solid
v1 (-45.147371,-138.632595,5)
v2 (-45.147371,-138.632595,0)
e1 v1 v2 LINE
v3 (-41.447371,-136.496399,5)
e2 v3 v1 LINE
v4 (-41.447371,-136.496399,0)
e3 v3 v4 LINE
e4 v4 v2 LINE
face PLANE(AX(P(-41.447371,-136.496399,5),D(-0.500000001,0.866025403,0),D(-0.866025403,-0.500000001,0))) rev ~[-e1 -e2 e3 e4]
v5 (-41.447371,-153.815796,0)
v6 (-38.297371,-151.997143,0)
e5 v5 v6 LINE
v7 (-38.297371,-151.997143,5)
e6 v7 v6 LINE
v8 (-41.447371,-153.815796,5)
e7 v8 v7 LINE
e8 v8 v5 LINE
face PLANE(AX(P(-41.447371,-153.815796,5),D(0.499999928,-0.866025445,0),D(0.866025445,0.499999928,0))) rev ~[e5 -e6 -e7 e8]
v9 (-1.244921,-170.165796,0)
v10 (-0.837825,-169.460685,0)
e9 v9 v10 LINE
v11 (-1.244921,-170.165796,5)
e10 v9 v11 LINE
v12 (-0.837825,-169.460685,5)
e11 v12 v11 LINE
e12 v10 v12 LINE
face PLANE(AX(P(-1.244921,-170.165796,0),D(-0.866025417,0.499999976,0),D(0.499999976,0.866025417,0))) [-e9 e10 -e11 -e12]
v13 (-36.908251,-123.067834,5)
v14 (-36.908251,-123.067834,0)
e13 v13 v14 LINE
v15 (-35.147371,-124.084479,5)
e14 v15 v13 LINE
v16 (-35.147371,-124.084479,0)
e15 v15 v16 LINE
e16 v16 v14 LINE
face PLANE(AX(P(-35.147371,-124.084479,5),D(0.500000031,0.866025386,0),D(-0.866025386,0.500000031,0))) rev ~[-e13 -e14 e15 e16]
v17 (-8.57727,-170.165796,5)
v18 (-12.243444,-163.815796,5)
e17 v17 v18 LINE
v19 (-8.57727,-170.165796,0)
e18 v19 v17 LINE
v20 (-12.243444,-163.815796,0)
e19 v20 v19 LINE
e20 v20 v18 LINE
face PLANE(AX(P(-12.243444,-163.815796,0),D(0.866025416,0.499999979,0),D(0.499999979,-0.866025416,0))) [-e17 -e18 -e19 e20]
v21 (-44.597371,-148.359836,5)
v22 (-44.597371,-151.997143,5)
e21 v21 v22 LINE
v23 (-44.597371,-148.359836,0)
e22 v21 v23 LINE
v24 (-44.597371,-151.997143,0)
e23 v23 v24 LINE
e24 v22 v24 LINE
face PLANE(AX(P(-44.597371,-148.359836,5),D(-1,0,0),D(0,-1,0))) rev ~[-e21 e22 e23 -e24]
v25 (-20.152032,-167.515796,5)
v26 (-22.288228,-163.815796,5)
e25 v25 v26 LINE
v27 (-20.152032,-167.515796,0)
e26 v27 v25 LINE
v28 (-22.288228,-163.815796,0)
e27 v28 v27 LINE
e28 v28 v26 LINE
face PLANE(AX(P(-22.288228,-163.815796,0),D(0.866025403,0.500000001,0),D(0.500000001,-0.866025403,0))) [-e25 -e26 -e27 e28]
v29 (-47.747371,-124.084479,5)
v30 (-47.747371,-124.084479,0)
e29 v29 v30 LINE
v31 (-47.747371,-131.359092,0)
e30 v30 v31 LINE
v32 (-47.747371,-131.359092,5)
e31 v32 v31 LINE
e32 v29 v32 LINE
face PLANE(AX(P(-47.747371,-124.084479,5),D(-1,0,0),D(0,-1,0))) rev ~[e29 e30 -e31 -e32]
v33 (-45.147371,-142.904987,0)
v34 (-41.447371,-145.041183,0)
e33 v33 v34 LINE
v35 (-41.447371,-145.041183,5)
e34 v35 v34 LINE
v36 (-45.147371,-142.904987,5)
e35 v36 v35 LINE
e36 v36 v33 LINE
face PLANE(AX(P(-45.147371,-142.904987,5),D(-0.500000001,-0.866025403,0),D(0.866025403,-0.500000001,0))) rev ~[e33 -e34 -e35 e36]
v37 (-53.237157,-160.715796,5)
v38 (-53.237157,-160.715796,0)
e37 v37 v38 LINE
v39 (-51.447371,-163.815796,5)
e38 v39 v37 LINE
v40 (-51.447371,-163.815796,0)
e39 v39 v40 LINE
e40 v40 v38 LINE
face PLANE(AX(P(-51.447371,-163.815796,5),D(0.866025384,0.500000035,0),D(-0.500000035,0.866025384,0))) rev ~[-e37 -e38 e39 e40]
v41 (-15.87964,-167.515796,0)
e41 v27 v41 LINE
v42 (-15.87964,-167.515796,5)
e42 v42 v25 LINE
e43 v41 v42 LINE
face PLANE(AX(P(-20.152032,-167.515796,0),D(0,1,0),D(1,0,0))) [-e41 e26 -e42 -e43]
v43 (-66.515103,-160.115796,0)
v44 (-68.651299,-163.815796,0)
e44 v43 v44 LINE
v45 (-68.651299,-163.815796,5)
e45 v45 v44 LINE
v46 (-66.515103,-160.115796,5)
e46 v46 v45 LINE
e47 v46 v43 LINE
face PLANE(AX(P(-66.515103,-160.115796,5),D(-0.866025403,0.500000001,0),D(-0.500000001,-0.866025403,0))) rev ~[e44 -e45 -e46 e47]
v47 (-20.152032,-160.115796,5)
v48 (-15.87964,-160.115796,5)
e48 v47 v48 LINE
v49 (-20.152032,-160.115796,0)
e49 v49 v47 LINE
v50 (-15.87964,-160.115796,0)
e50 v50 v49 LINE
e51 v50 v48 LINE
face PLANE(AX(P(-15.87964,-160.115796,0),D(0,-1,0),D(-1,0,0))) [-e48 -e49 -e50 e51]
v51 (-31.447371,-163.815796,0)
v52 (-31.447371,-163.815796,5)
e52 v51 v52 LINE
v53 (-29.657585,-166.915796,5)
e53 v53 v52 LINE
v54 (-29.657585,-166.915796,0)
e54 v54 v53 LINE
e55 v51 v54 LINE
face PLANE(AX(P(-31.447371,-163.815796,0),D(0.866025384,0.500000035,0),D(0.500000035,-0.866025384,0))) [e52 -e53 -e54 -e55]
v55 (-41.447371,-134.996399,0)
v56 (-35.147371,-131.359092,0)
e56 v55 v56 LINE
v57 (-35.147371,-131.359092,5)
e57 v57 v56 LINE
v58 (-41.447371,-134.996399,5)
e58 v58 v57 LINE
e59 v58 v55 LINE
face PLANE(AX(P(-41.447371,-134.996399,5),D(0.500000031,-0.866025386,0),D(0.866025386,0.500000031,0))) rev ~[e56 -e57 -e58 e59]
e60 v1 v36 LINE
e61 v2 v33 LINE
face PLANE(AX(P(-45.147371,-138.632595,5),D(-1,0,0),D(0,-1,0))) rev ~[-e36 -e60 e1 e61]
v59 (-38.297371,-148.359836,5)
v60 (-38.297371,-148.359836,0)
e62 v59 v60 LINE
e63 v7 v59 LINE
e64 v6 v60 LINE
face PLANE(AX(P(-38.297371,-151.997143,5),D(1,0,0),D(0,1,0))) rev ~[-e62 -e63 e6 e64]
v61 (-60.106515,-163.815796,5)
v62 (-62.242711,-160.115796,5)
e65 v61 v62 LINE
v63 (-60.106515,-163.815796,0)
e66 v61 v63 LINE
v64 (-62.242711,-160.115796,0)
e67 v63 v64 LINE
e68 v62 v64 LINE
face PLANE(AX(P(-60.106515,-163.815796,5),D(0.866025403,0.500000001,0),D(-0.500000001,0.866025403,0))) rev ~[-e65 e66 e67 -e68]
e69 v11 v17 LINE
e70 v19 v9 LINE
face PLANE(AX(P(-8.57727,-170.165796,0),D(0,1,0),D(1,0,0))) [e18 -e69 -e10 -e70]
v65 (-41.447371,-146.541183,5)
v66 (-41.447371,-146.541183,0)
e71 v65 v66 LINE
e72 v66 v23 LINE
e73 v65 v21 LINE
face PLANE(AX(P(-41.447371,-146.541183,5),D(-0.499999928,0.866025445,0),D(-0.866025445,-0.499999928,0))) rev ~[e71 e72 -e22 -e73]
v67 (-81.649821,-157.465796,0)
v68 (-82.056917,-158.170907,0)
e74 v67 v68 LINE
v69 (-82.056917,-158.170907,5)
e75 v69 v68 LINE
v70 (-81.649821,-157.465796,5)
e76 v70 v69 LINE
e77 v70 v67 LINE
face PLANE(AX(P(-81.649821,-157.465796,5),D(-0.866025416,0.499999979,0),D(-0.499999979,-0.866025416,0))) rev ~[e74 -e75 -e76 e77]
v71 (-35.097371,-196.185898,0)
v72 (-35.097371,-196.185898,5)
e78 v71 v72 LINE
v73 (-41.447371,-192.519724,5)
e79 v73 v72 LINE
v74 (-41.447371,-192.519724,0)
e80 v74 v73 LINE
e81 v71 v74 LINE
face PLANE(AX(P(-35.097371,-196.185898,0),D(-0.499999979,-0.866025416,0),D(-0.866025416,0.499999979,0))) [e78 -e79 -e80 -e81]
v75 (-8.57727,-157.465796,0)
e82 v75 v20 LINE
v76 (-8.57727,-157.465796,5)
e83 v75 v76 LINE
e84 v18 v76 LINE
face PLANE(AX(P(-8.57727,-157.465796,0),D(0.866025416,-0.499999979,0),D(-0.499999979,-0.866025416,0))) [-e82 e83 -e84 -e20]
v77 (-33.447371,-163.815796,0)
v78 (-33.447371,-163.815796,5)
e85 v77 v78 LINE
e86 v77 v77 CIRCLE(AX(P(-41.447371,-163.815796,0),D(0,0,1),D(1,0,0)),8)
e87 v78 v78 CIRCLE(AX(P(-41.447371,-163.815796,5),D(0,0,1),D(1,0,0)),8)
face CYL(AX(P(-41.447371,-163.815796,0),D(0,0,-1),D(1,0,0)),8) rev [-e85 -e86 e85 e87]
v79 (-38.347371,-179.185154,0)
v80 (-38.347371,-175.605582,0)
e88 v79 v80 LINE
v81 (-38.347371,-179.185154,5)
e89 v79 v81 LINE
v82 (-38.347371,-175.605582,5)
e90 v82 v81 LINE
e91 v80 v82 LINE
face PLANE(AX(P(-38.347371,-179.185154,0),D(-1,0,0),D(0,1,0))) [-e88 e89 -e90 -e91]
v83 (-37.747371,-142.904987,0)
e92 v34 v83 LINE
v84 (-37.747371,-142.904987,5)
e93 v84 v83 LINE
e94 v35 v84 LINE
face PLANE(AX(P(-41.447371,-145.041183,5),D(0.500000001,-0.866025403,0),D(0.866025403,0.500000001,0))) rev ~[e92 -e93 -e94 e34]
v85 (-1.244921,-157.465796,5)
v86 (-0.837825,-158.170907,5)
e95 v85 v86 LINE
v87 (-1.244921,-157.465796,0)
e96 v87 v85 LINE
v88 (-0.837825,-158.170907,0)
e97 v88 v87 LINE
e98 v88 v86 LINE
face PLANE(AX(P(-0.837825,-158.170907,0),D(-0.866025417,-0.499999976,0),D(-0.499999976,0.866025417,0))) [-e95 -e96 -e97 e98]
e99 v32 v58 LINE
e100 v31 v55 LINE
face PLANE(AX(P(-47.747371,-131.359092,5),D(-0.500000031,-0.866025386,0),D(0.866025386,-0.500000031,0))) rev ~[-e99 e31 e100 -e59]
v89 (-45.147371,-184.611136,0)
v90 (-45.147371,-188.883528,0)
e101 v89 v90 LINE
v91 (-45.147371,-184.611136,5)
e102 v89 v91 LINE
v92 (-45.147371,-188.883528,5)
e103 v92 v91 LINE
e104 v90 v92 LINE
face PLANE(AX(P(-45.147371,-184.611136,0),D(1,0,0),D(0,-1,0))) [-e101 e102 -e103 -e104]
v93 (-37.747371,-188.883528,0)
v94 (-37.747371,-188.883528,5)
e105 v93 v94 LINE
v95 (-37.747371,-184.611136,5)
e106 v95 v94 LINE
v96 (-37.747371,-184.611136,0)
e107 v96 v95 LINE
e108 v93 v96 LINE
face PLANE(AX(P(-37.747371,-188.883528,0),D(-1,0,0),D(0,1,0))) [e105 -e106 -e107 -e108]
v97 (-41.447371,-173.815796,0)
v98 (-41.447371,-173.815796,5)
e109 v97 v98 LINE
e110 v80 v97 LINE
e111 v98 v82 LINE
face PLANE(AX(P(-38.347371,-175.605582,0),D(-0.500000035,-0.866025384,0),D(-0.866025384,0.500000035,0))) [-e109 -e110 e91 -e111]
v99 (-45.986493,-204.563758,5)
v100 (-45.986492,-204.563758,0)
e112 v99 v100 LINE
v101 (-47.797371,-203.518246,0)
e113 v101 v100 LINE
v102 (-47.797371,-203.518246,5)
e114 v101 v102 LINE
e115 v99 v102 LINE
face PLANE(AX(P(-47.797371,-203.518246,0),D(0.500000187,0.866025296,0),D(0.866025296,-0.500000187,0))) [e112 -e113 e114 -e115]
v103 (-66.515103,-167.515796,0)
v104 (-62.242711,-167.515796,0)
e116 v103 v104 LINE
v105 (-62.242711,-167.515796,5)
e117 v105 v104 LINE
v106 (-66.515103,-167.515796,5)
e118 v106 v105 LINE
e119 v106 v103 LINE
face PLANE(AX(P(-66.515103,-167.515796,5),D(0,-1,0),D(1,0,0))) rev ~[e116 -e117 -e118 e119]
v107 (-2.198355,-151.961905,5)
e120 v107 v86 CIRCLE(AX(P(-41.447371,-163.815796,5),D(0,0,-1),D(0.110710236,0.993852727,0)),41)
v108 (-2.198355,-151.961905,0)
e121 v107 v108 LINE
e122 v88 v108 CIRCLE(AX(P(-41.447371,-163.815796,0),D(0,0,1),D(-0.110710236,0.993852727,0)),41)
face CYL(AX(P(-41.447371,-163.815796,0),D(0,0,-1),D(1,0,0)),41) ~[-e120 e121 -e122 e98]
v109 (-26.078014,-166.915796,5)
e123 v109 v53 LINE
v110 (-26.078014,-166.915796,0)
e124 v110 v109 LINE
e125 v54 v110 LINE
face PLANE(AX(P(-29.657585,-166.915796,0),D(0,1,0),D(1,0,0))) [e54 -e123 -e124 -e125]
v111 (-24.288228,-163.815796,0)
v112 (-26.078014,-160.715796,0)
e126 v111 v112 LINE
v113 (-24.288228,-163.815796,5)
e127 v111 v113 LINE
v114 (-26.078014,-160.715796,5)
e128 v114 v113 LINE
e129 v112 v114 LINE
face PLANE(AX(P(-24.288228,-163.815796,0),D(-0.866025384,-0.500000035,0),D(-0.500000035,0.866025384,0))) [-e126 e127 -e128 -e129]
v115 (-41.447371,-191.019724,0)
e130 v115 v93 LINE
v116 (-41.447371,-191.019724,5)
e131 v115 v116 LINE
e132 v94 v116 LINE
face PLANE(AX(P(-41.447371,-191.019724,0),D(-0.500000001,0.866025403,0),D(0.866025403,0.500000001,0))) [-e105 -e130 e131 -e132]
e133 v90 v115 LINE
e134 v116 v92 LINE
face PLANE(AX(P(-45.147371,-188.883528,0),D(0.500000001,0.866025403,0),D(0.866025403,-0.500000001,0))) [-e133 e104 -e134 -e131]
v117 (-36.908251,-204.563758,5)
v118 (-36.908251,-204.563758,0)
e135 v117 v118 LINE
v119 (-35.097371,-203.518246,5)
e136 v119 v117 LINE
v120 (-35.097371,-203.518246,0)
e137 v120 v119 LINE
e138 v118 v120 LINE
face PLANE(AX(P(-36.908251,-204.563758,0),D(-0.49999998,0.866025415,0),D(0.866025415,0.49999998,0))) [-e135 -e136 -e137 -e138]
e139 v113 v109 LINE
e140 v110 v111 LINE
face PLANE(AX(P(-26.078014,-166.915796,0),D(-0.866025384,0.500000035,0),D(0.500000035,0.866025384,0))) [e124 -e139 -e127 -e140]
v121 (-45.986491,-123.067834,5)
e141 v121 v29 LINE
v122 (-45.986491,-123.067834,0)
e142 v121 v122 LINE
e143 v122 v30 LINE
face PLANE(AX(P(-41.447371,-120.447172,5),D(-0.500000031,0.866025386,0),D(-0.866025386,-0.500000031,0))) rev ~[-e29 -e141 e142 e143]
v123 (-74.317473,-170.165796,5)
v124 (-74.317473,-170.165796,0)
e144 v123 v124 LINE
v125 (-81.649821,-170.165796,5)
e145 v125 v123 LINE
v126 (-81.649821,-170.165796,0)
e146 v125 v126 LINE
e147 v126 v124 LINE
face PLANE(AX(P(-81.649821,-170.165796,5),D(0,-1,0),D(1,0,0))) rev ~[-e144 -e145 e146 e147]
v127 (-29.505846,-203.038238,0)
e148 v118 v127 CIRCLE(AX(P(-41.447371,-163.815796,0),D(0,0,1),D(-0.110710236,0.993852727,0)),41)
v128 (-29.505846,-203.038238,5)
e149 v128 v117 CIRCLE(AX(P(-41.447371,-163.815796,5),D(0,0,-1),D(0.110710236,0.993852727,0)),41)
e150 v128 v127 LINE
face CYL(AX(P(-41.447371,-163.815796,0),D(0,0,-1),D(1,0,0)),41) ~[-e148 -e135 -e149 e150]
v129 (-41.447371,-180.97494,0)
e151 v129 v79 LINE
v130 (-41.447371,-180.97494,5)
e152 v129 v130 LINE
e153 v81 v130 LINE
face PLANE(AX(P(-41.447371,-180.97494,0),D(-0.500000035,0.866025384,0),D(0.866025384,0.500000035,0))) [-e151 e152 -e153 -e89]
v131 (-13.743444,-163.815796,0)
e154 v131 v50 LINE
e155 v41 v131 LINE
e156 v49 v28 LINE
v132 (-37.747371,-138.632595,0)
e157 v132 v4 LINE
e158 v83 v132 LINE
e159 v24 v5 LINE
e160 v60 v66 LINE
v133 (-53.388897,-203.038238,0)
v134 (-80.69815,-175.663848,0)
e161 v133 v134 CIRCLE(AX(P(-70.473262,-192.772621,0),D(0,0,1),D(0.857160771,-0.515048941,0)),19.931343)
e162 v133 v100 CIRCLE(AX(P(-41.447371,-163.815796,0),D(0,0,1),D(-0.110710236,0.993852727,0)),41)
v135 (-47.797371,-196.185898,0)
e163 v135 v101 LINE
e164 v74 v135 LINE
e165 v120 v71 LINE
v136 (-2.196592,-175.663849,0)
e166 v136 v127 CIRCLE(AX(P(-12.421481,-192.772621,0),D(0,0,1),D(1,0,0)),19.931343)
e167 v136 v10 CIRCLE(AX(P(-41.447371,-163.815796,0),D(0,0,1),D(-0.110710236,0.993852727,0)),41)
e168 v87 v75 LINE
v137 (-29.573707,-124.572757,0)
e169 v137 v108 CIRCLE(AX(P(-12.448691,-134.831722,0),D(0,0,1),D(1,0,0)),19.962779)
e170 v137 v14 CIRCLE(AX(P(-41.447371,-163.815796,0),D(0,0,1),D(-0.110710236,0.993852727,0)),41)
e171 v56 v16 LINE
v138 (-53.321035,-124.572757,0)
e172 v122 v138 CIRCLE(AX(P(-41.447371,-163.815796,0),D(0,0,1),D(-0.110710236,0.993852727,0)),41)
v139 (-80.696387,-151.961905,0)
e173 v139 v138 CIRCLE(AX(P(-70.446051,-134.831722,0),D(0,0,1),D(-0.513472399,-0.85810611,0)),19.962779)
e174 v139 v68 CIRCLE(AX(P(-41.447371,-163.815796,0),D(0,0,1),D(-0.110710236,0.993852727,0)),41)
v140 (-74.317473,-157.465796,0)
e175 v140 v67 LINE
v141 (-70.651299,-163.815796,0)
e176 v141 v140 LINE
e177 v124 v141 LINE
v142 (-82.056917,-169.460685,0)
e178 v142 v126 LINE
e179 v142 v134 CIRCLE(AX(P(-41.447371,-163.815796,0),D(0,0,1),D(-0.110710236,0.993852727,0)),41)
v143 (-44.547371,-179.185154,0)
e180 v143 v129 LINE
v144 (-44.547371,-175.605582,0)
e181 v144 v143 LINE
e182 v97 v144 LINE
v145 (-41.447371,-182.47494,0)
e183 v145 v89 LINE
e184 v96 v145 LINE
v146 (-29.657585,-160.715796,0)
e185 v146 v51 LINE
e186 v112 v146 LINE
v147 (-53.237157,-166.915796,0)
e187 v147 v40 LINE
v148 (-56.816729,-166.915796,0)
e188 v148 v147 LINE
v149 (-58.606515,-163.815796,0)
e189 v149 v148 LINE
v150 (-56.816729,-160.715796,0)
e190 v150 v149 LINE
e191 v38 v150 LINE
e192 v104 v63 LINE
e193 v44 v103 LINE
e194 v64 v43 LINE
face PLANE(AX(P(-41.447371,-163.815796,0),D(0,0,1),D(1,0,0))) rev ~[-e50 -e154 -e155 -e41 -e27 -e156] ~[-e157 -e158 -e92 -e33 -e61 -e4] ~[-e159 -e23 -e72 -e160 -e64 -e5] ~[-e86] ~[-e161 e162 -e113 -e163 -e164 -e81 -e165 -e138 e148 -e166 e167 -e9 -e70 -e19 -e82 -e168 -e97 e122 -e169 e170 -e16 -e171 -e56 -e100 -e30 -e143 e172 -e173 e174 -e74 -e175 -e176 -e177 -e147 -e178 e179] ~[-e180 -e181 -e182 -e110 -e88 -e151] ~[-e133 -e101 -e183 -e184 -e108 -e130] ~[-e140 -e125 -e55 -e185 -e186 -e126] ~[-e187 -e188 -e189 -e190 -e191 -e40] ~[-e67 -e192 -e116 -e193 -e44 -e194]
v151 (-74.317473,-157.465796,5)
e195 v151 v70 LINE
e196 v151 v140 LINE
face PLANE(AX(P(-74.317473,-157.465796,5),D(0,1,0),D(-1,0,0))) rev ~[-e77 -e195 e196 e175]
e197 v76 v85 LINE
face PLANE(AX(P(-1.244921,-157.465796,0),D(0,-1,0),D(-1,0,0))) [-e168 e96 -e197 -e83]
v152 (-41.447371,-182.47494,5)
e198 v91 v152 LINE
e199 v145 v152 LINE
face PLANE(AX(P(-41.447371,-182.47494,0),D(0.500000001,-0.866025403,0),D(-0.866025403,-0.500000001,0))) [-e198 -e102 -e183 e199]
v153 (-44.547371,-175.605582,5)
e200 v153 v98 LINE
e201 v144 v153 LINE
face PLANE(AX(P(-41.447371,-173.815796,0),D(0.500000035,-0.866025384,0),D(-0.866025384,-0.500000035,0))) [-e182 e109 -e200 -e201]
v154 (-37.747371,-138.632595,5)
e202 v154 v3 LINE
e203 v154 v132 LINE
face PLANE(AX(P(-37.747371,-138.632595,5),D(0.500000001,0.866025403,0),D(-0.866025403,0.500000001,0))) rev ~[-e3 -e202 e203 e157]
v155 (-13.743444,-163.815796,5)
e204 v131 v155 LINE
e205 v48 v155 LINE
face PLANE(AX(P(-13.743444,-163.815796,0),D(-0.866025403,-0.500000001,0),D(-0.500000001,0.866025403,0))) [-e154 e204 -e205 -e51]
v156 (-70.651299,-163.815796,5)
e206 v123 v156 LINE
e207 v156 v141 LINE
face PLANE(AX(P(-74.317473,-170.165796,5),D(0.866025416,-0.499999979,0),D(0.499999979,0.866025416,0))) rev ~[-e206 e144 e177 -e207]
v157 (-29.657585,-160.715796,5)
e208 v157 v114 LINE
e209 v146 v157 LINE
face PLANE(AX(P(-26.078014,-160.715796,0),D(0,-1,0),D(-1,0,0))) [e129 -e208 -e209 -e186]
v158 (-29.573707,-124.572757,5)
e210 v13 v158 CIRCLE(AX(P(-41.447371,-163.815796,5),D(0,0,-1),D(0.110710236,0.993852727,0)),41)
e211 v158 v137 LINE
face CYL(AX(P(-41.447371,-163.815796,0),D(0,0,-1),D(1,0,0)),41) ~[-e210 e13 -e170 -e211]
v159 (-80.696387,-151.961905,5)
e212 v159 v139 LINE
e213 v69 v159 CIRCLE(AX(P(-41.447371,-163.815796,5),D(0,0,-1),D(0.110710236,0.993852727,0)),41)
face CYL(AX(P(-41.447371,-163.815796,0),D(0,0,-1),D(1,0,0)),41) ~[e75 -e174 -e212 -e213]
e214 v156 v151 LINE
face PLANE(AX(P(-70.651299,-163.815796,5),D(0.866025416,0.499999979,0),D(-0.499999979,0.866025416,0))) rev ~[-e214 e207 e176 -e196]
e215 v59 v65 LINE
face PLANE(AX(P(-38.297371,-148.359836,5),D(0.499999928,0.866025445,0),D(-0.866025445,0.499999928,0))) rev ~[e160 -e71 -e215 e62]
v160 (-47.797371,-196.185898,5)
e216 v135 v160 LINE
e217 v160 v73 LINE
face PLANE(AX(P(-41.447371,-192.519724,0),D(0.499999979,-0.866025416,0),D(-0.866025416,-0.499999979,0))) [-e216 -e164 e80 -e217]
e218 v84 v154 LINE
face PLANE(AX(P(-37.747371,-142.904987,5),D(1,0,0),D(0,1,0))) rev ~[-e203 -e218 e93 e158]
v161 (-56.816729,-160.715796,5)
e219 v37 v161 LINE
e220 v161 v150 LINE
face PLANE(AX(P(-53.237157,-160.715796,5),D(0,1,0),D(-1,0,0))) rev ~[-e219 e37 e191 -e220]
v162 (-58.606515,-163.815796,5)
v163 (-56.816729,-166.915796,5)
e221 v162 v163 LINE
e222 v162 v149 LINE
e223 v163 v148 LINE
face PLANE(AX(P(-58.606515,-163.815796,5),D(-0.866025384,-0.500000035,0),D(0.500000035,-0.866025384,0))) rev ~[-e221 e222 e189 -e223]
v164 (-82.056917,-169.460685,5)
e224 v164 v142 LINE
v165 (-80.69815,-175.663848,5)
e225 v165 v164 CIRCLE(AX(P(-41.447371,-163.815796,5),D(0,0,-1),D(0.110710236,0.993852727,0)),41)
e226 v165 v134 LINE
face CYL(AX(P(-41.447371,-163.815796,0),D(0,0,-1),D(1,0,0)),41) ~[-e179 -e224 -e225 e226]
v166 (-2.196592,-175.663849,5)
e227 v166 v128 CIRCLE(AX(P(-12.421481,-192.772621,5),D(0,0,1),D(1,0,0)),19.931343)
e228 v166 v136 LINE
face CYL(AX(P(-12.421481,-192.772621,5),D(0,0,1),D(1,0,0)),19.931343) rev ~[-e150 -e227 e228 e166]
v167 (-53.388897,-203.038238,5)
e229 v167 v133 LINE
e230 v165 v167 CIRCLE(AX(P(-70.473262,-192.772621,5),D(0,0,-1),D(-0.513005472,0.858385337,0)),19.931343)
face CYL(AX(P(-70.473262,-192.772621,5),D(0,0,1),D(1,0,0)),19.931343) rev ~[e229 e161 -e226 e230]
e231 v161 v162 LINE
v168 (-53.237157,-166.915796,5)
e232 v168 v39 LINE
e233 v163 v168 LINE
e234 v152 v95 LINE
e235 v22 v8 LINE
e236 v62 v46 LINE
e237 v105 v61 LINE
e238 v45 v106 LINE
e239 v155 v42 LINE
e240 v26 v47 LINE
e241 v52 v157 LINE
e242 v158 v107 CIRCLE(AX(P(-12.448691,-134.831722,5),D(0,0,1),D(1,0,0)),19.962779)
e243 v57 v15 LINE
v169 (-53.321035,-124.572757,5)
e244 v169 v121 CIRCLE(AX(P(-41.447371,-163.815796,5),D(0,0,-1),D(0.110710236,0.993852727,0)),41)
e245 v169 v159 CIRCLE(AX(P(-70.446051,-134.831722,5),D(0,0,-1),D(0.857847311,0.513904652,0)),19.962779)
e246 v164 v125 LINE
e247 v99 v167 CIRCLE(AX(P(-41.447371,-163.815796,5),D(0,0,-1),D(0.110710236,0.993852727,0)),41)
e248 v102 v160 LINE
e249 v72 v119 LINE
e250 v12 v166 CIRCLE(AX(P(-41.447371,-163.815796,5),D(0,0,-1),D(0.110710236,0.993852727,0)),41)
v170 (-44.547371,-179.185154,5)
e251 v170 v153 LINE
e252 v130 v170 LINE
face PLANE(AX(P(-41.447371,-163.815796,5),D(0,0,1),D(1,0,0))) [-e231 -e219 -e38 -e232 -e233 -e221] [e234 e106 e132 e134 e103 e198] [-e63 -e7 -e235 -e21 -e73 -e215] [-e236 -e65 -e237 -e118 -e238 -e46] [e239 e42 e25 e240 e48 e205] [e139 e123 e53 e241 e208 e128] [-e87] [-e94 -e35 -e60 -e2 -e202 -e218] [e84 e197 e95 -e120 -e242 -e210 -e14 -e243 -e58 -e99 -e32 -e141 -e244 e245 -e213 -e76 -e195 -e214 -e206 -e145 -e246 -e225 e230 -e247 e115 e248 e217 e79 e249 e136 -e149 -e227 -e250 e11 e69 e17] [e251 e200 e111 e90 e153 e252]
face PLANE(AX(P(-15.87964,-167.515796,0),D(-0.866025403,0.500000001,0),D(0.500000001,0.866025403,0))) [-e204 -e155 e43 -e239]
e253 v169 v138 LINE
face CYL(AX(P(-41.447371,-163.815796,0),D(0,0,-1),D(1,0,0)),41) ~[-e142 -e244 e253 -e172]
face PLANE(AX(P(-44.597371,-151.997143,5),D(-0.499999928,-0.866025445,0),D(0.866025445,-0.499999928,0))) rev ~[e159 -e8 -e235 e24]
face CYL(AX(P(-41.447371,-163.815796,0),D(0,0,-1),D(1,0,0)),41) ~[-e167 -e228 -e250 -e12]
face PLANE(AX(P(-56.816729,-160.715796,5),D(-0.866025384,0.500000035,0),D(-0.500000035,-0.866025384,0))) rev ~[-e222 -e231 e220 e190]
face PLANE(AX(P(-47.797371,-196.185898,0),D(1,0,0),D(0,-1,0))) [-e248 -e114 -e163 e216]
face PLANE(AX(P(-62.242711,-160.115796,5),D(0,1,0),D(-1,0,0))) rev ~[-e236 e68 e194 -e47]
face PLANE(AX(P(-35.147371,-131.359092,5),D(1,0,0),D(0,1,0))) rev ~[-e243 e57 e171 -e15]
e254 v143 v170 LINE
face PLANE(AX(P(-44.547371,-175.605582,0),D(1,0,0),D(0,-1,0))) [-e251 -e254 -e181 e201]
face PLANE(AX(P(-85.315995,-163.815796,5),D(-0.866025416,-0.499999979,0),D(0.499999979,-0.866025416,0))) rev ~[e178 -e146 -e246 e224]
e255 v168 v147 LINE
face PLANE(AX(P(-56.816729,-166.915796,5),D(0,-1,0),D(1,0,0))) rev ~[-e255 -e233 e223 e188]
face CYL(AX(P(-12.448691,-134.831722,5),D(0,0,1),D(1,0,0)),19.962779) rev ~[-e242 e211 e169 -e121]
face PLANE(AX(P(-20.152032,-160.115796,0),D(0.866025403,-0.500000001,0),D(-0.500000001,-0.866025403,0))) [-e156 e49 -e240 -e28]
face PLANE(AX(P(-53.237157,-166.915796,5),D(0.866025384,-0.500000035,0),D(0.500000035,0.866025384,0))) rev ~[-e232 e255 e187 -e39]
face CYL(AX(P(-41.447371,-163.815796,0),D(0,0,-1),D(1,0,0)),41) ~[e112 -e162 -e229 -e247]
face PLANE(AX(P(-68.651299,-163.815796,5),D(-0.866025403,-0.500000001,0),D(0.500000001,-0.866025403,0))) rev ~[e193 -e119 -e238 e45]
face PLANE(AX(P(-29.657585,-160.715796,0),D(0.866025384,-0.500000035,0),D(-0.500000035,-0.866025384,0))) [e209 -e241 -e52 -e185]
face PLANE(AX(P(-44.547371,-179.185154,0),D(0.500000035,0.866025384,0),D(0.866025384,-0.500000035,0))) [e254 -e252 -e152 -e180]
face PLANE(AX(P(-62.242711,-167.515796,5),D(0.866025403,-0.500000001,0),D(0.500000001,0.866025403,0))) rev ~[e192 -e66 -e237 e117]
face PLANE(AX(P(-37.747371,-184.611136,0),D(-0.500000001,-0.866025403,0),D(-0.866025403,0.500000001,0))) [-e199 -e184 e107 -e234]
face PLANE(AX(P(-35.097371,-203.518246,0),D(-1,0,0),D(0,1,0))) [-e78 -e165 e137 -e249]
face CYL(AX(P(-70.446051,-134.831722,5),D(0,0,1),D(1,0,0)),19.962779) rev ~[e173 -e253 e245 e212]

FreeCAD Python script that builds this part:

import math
import FreeCAD as App
import Part
import Sketcher
from FreeCAD import Vector
Q = App.Units.Quantity

doc = App.newDocument("Part")
body = doc.addObject("PartDesign::Body", "Body")

# Sketch on XY plane
sketch1 = doc.addObject("Sketcher::SketchObject", "Sketch")
body.addObject(sketch1)
sketch1.AttachmentSupport = (doc.XY_Plane, [""])
sketch1.MapMode = "FlatFace"
sketch1.addGeometry([
    Part.Circle(Vector(-41, -164, 0), Vector(0, 0, 1), 41),
    Part.Circle(Vector(-41, -164, 0), Vector(0, 0, 1), 8),
], False)
sketch1.addConstraint([
    Sketcher.Constraint("Coincident", 1, 3, 0, 3),
    Sketcher.Constraint("Diameter", 0, 82.0),
    Sketcher.Constraint("Diameter", 1, 16.0),
    Sketcher.Constraint("DistanceX", 0, 3, -1, 1, 41.447371),
    Sketcher.Constraint("DistanceY", 0, 3, -1, 1, 163.815796),
])
pad1 = doc.addObject("PartDesign::Pad", "Pad")
body.addObject(pad1)
pad1.Profile = sketch1
pad1.Length = 5

# Sketch on XY plane
sketch2 = doc.addObject("Sketcher::SketchObject", "Sketch001")
body.addObject(sketch2)
sketch2.AttachmentSupport = (doc.XY_Plane, [""])
sketch2.MapMode = "FlatFace"
sketch2.AttachmentOffset = App.Placement(Vector(0, 0, 5), App.Rotation())
sketch2.addGeometry([
    Part.LineSegment(Vector(-38.3, -152, 0), Vector(-38.3, -148.4, 0)),  # 0
    Part.LineSegment(Vector(-38.3, -148.4, 0), Vector(-41.4, -146.5, 0)),  # 1
    Part.LineSegment(Vector(-41.4, -146.5, 0), Vector(-44.6, -148.4, 0)),  # 2
    Part.LineSegment(Vector(-44.6, -148.4, 0), Vector(-44.6, -152, 0)),  # 3
    Part.LineSegment(Vector(-44.6, -152, 0), Vector(-41.4, -153.8, 0)),  # 4
    Part.LineSegment(Vector(-41.4, -153.8, 0), Vector(-38.3, -152, 0)),  # 5
], False)
sketch2.addConstraint([
    Sketcher.Constraint("Coincident", 0, 2, 1, 1),
    Sketcher.Constraint("Coincident", 1, 2, 2, 1),
    Sketcher.Constraint("Coincident", 2, 2, 3, 1),
    Sketcher.Constraint("Coincident", 3, 2, 4, 1),
    Sketcher.Constraint("Coincident", 4, 2, 5, 1),
    Sketcher.Constraint("Coincident", 5, 2, 0, 1),
    Sketcher.Constraint("Vertical", 0),
    Sketcher.Constraint("Vertical", 3),
    Sketcher.Constraint("Parallel", 1, 4),
    Sketcher.Constraint("Parallel", 2, 5),
    Sketcher.Constraint("Horizontal", 0, 2, 2, 2),
    Sketcher.Constraint("Horizontal", 3, 2, 5, 2),
    Sketcher.Constraint("Vertical", 1, 2, 4, 2),
    Sketcher.Constraint("Angle", 1, Q("150.000005 deg")),
    Sketcher.Constraint("DistanceX", 2, 2, 0, 2, 6.3),
    Sketcher.Constraint("DistanceY", 0, 1, 0, 2, 3.637307),
    Sketcher.Constraint("DistanceX", 0, 2, -1, 1, 38.297371),
    Sketcher.Constraint("DistanceY", 0, 2, -1, 1, 148.359836),
])
pocket1 = doc.addObject("PartDesign::Pocket", "Pocket")
body.addObject(pocket1)
pocket1.Profile = sketch2
pocket1.Type = "ThroughAll"

# Sketch on XY plane
sketch3 = doc.addObject("Sketcher::SketchObject", "Sketch002")
body.addObject(sketch3)
sketch3.AttachmentSupport = (doc.XY_Plane, [""])
sketch3.MapMode = "FlatFace"
sketch3.AttachmentOffset = App.Placement(Vector(0, 0, 5), App.Rotation())
sketch3.addGeometry([
    Part.LineSegment(Vector(-37.7, -142.9, 0), Vector(-37.7, -138.6, 0)),  # 0
    Part.LineSegment(Vector(-37.7, -138.6, 0), Vector(-41.4, -136.5, 0)),  # 1
    Part.LineSegment(Vector(-41.4, -136.5, 0), Vector(-45.1, -138.6, 0)),  # 2
    Part.LineSegment(Vector(-45.1, -138.6, 0), Vector(-45.1, -142.9, 0)),  # 3
    Part.LineSegment(Vector(-45.1, -142.9, 0), Vector(-41.4, -145, 0)),  # 4
    Part.LineSegment(Vector(-41.4, -145, 0), Vector(-37.7, -142.9, 0)),  # 5
], False)
sketch3.addConstraint([
    Sketcher.Constraint("Coincident", 0, 2, 1, 1),
    Sketcher.Constraint("Coincident", 1, 2, 2, 1),
    Sketcher.Constraint("Coincident", 2, 2, 3, 1),
    Sketcher.Constraint("Coincident", 3, 2, 4, 1),
    Sketcher.Constraint("Coincident", 4, 2, 5, 1),
    Sketcher.Constraint("Coincident", 5, 2, 0, 1),
    Sketcher.Constraint("Vertical", 0),
    Sketcher.Constraint("Vertical", 3),
    Sketcher.Constraint("Parallel", 1, 4),
    Sketcher.Constraint("Parallel", 2, 5),
    Sketcher.Constraint("Horizontal", 0, 2, 2, 2),
    Sketcher.Constraint("Horizontal", 3, 2, 5, 2),
    Sketcher.Constraint("Vertical", 1, 2, 4, 2),
    Sketcher.Constraint("Angle", 1, Q("150 deg")),
    Sketcher.Constraint("DistanceX", 1, 2, 0, 2, 3.7),
    Sketcher.Constraint("DistanceY", 0, 1, 0, 2, 4.272392),
    Sketcher.Constraint("DistanceY", 1, 2, -1, 1, 136.496399),
    Sketcher.Constraint("DistanceX", 0, 2, -1, 1, 37.747371),
])
pocket2 = doc.addObject("PartDesign::Pocket", "Pocket001")
body.addObject(pocket2)
pocket2.Profile = sketch3
pocket2.Type = "ThroughAll"

# Sketch on XY plane
sketch4 = doc.addObject("Sketcher::SketchObject", "Sketch003")
body.addObject(sketch4)
sketch4.AttachmentSupport = (doc.XY_Plane, [""])
sketch4.MapMode = "FlatFace"
sketch4.AttachmentOffset = App.Placement(Vector(0, 0, 5), App.Rotation())
sketch4.addGeometry([
    Part.LineSegment(Vector(-48, -131, 0), Vector(-41, -135, 0)),  # 0
    Part.LineSegment(Vector(-41, -135, 0), Vector(-35, -131, 0)),  # 1
    Part.LineSegment(Vector(-35, -131, 0), Vector(-35, -124, 0)),  # 2
    Part.LineSegment(Vector(-35, -124, 0), Vector(-41, -120, 0)),  # 3
    Part.LineSegment(Vector(-41, -120, 0), Vector(-48, -124, 0)),  # 4
    Part.LineSegment(Vector(-48, -124, 0), Vector(-48, -131, 0)),  # 5
], False)
sketch4.addConstraint([
    Sketcher.Constraint("Coincident", 0, 2, 1, 1),
    Sketcher.Constraint("Coincident", 1, 2, 2, 1),
    Sketcher.Constraint("Coincident", 2, 2, 3, 1),
    Sketcher.Constraint("Coincident", 3, 2, 4, 1),
    Sketcher.Constraint("Coincident", 4, 2, 5, 1),
    Sketcher.Constraint("Coincident", 5, 2, 0, 1),
    Sketcher.Constraint("Vertical", 2),
    Sketcher.Constraint("Vertical", 5),
    Sketcher.Constraint("Parallel", 0, 3),
    Sketcher.Constraint("Parallel", 1, 4),
    Sketcher.Constraint("Horizontal", 2, 2, 4, 2),
    Sketcher.Constraint("Horizontal", 1, 2, 5, 2),
    Sketcher.Constraint("Vertical", 0, 2, 3, 2),
    Sketcher.Constraint("Angle", 0, Q("-30.000002 deg")),
    Sketcher.Constraint("DistanceX", 0, 2, 1, 2, 6.3),
    Sketcher.Constraint("DistanceY", 0, 2, -1, 1, 134.996399),
    Sketcher.Constraint("DistanceY", 2, 1, 2, 2, 7.274613),
    Sketcher.Constraint("DistanceX", 0, 2, -1, 1, 41.447371),
])
pocket3 = doc.addObject("PartDesign::Pocket", "Pocket002")
body.addObject(pocket3)
pocket3.Profile = sketch4
pocket3.Type = "ThroughAll"

# Sketch on XY plane
sketch5 = doc.addObject("Sketcher::SketchObject", "Sketch004")
body.addObject(sketch5)
sketch5.AttachmentSupport = (doc.XY_Plane, [""])
sketch5.MapMode = "FlatFace"
sketch5.addGeometry([
    Part.LineSegment(Vector(-38.3, -175.6, 0), Vector(-41.4, -173.8, 0)),  # 0
    Part.LineSegment(Vector(-41.4, -173.8, 0), Vector(-44.5, -175.6, 0)),  # 1
    Part.LineSegment(Vector(-44.5, -175.6, 0), Vector(-44.5, -179.2, 0)),  # 2
    Part.LineSegment(Vector(-44.5, -179.2, 0), Vector(-41.4, -181, 0)),  # 3
    Part.LineSegment(Vector(-41.4, -181, 0), Vector(-38.3, -179.2, 0)),  # 4
    Part.LineSegment(Vector(-38.3, -179.2, 0), Vector(-38.3, -175.6, 0)),  # 5
], False)
sketch5.addConstraint([
    Sketcher.Constraint("Coincident", 0, 2, 1, 1),
    Sketcher.Constraint("Coincident", 1, 2, 2, 1),
    Sketcher.Constraint("Coincident", 2, 2, 3, 1),
    Sketcher.Constraint("Coincident", 3, 2, 4, 1),
    Sketcher.Constraint("Coincident", 4, 2, 5, 1),
    Sketcher.Constraint("Coincident", 5, 2, 0, 1),
    Sketcher.Constraint("Vertical", 2),
    Sketcher.Constraint("Vertical", 5),
    Sketcher.Constraint("Parallel", 0, 3),
    Sketcher.Constraint("Parallel", 1, 4),
    Sketcher.Constraint("Horizontal", 2, 2, 4, 2),
    Sketcher.Constraint("Horizontal", 1, 2, 5, 2),
    Sketcher.Constraint("Vertical", 0, 2, 3, 2),
    Sketcher.Constraint("Angle", 0, Q("149.999998 deg")),
    Sketcher.Constraint("DistanceX", 1, 2, 0, 2, 3.1),
    Sketcher.Constraint("DistanceY", 2, 2, 2, 1, 3.579572),
    Sketcher.Constraint("DistanceX", 0, 2, -1, 1, 41.447371),
    Sketcher.Constraint("DistanceY", 1, 2, -1, 1, 175.605582),
])
pocket4 = doc.addObject("PartDesign::Pocket", "Pocket003")
body.addObject(pocket4)
pocket4.Profile = sketch5
pocket4.Type = "ThroughAll"
pocket4.Reversed = True

# Sketch on XY plane
sketch6 = doc.addObject("Sketcher::SketchObject", "Sketch005")
body.addObject(sketch6)
sketch6.AttachmentSupport = (doc.XY_Plane, [""])
sketch6.MapMode = "FlatFace"
sketch6.addGeometry([
    Part.LineSegment(Vector(-37.7, -184.6, 0), Vector(-41.4, -182.5, 0)),  # 0
    Part.LineSegment(Vector(-41.4, -182.5, 0), Vector(-45.1, -184.6, 0)),  # 1
    Part.LineSegment(Vector(-45.1, -184.6, 0), Vector(-45.1, -188.9, 0)),  # 2
    Part.LineSegment(Vector(-45.1, -188.9, 0), Vector(-41.4, -191, 0)),  # 3
    Part.LineSegment(Vector(-41.4, -191, 0), Vector(-37.7, -188.9, 0)),  # 4
    Part.LineSegment(Vector(-37.7, -188.9, 0), Vector(-37.7, -184.6, 0)),  # 5
], False)
sketch6.addConstraint([
    Sketcher.Constraint("Coincident", 0, 2, 1, 1),
    Sketcher.Constraint("Coincident", 1, 2, 2, 1),
    Sketcher.Constraint("Coincident", 2, 2, 3, 1),
    Sketcher.Constraint("Coincident", 3, 2, 4, 1),
    Sketcher.Constraint("Coincident", 4, 2, 5, 1),
    Sketcher.Constraint("Coincident", 5, 2, 0, 1),
    Sketcher.Constraint("Vertical", 2),
    Sketcher.Constraint("Vertical", 5),
    Sketcher.Constraint("Parallel", 0, 3),
    Sketcher.Constraint("Parallel", 1, 4),
    Sketcher.Constraint("Horizontal", 2, 2, 4, 2),
    Sketcher.Constraint("Horizontal", 1, 2, 5, 2),
    Sketcher.Constraint("Vertical", 0, 2, 3, 2),
    Sketcher.Constraint("Angle", 0, Q("150 deg")),
    Sketcher.Constraint("DistanceX", 1, 2, 0, 2, 3.7),
    Sketcher.Constraint("DistanceY", 2, 2, 2, 1, 4.272392),
    Sketcher.Constraint("DistanceX", 0, 2, -1, 1, 41.447371),
    Sketcher.Constraint("DistanceY", 0, 2, -1, 1, 182.47494),
])
pocket5 = doc.addObject("PartDesign::Pocket", "Pocket004")
body.addObject(pocket5)
pocket5.Profile = sketch6
pocket5.Type = "ThroughAll"
pocket5.Reversed = True

# Sketch on XY plane
sketch7 = doc.addObject("Sketcher::SketchObject", "Sketch006")
body.addObject(sketch7)
sketch7.AttachmentSupport = (doc.XY_Plane, [""])
sketch7.MapMode = "FlatFace"
sketch7.addGeometry([
    Part.LineSegment(Vector(-35.1, -196.2, 0), Vector(-41.4, -192.5, 0)),  # 0
    Part.LineSegment(Vector(-41.4, -192.5, 0), Vector(-47.8, -196.2, 0)),  # 1
    Part.LineSegment(Vector(-47.8, -196.2, 0), Vector(-47.8, -203.5, 0)),  # 2
    Part.LineSegment(Vector(-47.8, -203.5, 0), Vector(-46, -204.6, 0)),  # 3
    Part.ArcOfCircle(Part.Circle(Vector(-41.4, -163.8, 0), Vector(0, 0, 1), 41), math.radians(-96.36), math.radians(-83.64)),  # 4
    Part.LineSegment(Vector(-36.9, -204.6, 0), Vector(-35.1, -203.5, 0)),  # 5
    Part.LineSegment(Vector(-35.1, -203.5, 0), Vector(-35.1, -196.2, 0)),  # 6
], False)
sketch7.addConstraint([
    Sketcher.Constraint("Coincident", 0, 2, 1, 1),
    Sketcher.Constraint("Coincident", 1, 2, 2, 1),
    Sketcher.Constraint("Coincident", 2, 2, 3, 1),
    Sketcher.Constraint("Coincident", 3, 2, 4, 1),
    Sketcher.Constraint("Coincident", 4, 2, 5, 1),
    Sketcher.Constraint("Coincident", 5, 2, 6, 1),
    Sketcher.Constraint("Coincident", 6, 2, 0, 1),
    Sketcher.Constraint("Vertical", 2),
    Sketcher.Constraint("Vertical", 6),
    Sketcher.Constraint("Parallel", 0, 3),
    Sketcher.Constraint("Parallel", 1, 5),
    Sketcher.Constraint("Horizontal", 3, 2, 4, 2),
    Sketcher.Constraint("Horizontal", 2, 2, 5, 2),
    Sketcher.Constraint("Horizontal", 1, 2, 6, 2),
    Sketcher.Constraint("Vertical", 4, 3, 0, 2),
    Sketcher.Constraint("Angle", 0, Q("150.000001 deg")),
    Sketcher.Constraint("DistanceX", 2, 2, 5, 2, 12.7),
    Sketcher.Constraint("Radius", 4, 41.000044),
    Sketcher.Constraint("DistanceY", 1, 2, -1, 1, 196.185898),
    Sketcher.Constraint("DistanceY", 2, 2, 2, 1, 7.332348),
    Sketcher.Constraint("DistanceX", 4, 3, -1, 1, 41.447372),
    Sketcher.Constraint("DistanceX", 3, 2, -1, 1, 45.986492),
])
pocket6 = doc.addObject("PartDesign::Pocket", "Pocket005")
body.addObject(pocket6)
pocket6.Profile = sketch7
pocket6.Length = 25
pocket6.Reversed = True

# Sketch on XY plane
sketch8 = doc.addObject("Sketcher::SketchObject", "Sketch007")
body.addObject(sketch8)
sketch8.AttachmentSupport = (doc.XY_Plane, [""])
sketch8.MapMode = "FlatFace"
sketch8.addGeometry([
    Part.Circle(Vector(-41.4, -163.8, 0), Vector(0, 0, 1), 8),  # 0
    Part.LineSegment(Vector(-24.3, -163.8, 0), Vector(-26.1, -160.7, 0)),  # 1
    Part.LineSegment(Vector(-26.1, -160.7, 0), Vector(-29.7, -160.7, 0)),  # 2
    Part.LineSegment(Vector(-29.7, -160.7, 0), Vector(-31.4, -163.8, 0)),  # 3
    Part.LineSegment(Vector(-31.4, -163.8, 0), Vector(-29.7, -166.9, 0)),  # 4
    Part.LineSegment(Vector(-29.7, -166.9, 0), Vector(-26.1, -166.9, 0)),  # 5
    Part.LineSegment(Vector(-26.1, -166.9, 0), Vector(-24.3, -163.8, 0)),  # 6
], False)
sketch8.addConstraint([
    Sketcher.Constraint("Coincident", 1, 2, 2, 1),
    Sketcher.Constraint("Coincident", 2, 2, 3, 1),
    Sketcher.Constraint("Coincident", 3, 2, 4, 1),
    Sketcher.Constraint("Coincident", 4, 2, 5, 1),
    Sketcher.Constraint("Coincident", 5, 2, 6, 1),
    Sketcher.Constraint("Coincident", 6, 2, 1, 1),
    Sketcher.Constraint("Horizontal", 2),
    Sketcher.Constraint("Horizontal", 5),
    Sketcher.Constraint("Parallel", 1, 4),
    Sketcher.Constraint("Parallel", 3, 6),
    Sketcher.Constraint("Horizontal", 0, 3, 3, 2),
    Sketcher.Constraint("Horizontal", 3, 2, 6, 2),
    Sketcher.Constraint("Vertical", 2, 2, 4, 2),
    Sketcher.Constraint("Vertical", 1, 2, 5, 2),
    Sketcher.Constraint("Diameter", 0, 16.0),
    Sketcher.Constraint("Angle", 1, Q("120.000002 deg")),
    Sketcher.Constraint("DistanceX", 0, 3, 3, 2, 10.0),
    Sketcher.Constraint("DistanceY", 0, 3, 1, 2, 3.1),
    Sketcher.Constraint("DistanceX", 2, 2, 2, 1, 3.579571),
    Sketcher.Constraint("DistanceX", 0, 3, -1, 1, 41.447371),
    Sketcher.Constraint("DistanceY", 0, 3, -1, 1, 163.815796),
])
pocket7 = doc.addObject("PartDesign::Pocket", "Pocket006")
body.addObject(pocket7)
pocket7.Profile = sketch8
pocket7.Type = "ThroughAll"
pocket7.Reversed = True

# Sketch on XY plane
sketch9 = doc.addObject("Sketcher::SketchObject", "Sketch008")
body.addObject(sketch9)
sketch9.AttachmentSupport = (doc.XY_Plane, [""])
sketch9.MapMode = "FlatFace"
sketch9.addGeometry([
    Part.LineSegment(Vector(-15.9, -160.1, 0), Vector(-20.2, -160.1, 0)),  # 0
    Part.LineSegment(Vector(-20.2, -160.1, 0), Vector(-22.3, -163.8, 0)),  # 1
    Part.LineSegment(Vector(-22.3, -163.8, 0), Vector(-20.2, -167.5, 0)),  # 2
    Part.LineSegment(Vector(-20.2, -167.5, 0), Vector(-15.9, -167.5, 0)),  # 3
    Part.LineSegment(Vector(-15.9, -167.5, 0), Vector(-13.7, -163.8, 0)),  # 4
    Part.LineSegment(Vector(-13.7, -163.8, 0), Vector(-15.9, -160.1, 0)),  # 5
], False)
sketch9.addConstraint([
    Sketcher.Constraint("Coincident", 0, 2, 1, 1),
    Sketcher.Constraint("Coincident", 1, 2, 2, 1),
    Sketcher.Constraint("Coincident", 2, 2, 3, 1),
    Sketcher.Constraint("Coincident", 3, 2, 4, 1),
    Sketcher.Constraint("Coincident", 4, 2, 5, 1),
    Sketcher.Constraint("Coincident", 5, 2, 0, 1),
    Sketcher.Constraint("Horizontal", 0),
    Sketcher.Constraint("Horizontal", 3),
    Sketcher.Constraint("Parallel", 1, 4),
    Sketcher.Constraint("Parallel", 2, 5),
    Sketcher.Constraint("Horizontal", 1, 2, 4, 2),
    Sketcher.Constraint("Vertical", 0, 2, 2, 2),
    Sketcher.Constraint("Vertical", 3, 2, 5, 2),
    Sketcher.Constraint("Angle", 1, Q("-120 deg")),
    Sketcher.Constraint("DistanceY", 1, 2, 0, 2, 3.7),
    Sketcher.Constraint("DistanceX", 0, 2, 0, 1, 4.272392),
    Sketcher.Constraint("DistanceX", 0, 2, -1, 1, 20.152032),
    Sketcher.Constraint("DistanceY", 0, 2, -1, 1, 160.115796),
])
pocket8 = doc.addObject("PartDesign::Pocket", "Pocket007")
body.addObject(pocket8)
pocket8.Profile = sketch9
pocket8.Type = "ThroughAll"
pocket8.Reversed = True

# Sketch on XY plane
sketch10 = doc.addObject("Sketcher::SketchObject", "Sketch009")
body.addObject(sketch10)
sketch10.AttachmentSupport = (doc.XY_Plane, [""])
sketch10.MapMode = "FlatFace"
sketch10.addGeometry([
    Part.LineSegment(Vector(-0.837825, -158.170907, 0), Vector(-1.244921, -157.465796, 0)),  # 0
    Part.LineSegment(Vector(-1.244921, -157.465796, 0), Vector(-8.57727, -157.465796, 0)),  # 1
    Part.LineSegment(Vector(-8.57727, -157.465796, 0), Vector(-12.243444, -163.815796, 0)),  # 2
    Part.LineSegment(Vector(-12.243444, -163.815796, 0), Vector(-8.57727, -170.165796, 0)),  # 3
    Part.LineSegment(Vector(-8.57727, -170.165796, 0), Vector(-1.244921, -170.165796, 0)),  # 4
    Part.LineSegment(Vector(-1.244921, -170.165796, 0), Vector(-0.837825, -169.460685, 0)),  # 5
    Part.ArcOfCircle(Part.Circle(Vector(-41.447358, -163.815797, 0), Vector(0, 0, 1), 40.999987), math.radians(-7.913634), math.radians(0.000001)),  # 6
    Part.ArcOfCircle(Part.Circle(Vector(-41.447387, -163.815797, 0), Vector(0, 0, 1), 41.000016), math.radians(0.000002), math.radians(7.913631)),  # 7
], False)
sketch10.addConstraint([
    Sketcher.Constraint("Coincident", 0, 2, 1, 1),
    Sketcher.Constraint("Coincident", 1, 2, 2, 1),
    Sketcher.Constraint("Coincident", 2, 2, 3, 1),
    Sketcher.Constraint("Coincident", 3, 2, 4, 1),
    Sketcher.Constraint("Coincident", 4, 2, 5, 1),
    Sketcher.Constraint("Coincident", 5, 2, 6, 1),
    Sketcher.Constraint("Coincident", 6, 2, 7, 1),
    Sketcher.Constraint("Coincident", 7, 2, 0, 1),
    Sketcher.Constraint("Horizontal", 1),
    Sketcher.Constraint("Horizontal", 4),
    Sketcher.Constraint("DistanceY", 3, 2, 1, 2, 12.7),
    Sketcher.Constraint("DistanceY", 6, 3, 0, 2, 6.350001),
    Sketcher.Constraint("DistanceY", 7, 3, 0, 2, 6.350001),
    Sketcher.Constraint("DistanceY", 2, 2, 1, 2, 6.35),
    Sketcher.Constraint("DistanceY", 6, 2, 0, 2, 6.35),
    Sketcher.Constraint("Radius", 6, 40.999987),
    Sketcher.Constraint("Radius", 7, 41.000016),
    Sketcher.Constraint("DistanceX", 1, 2, 1, 1, 7.332349),
    Sketcher.Constraint("DistanceX", 4, 1, 4, 2, 7.332349),
    Sketcher.Constraint("DistanceX", 1, 2, 6, 2, 8.129899),
    Sketcher.Constraint("DistanceX", 3, 2, 6, 2, 8.129899),
    Sketcher.Constraint("Distance", 2, 7.332348),
    Sketcher.Constraint("DistanceX", 6, 3, -1, 1, 41.447358),
    Sketcher.Constraint("DistanceY", 4, 2, 5, 2, 0.705111),
    Sketcher.Constraint("DistanceY", 7, 2, 0, 2, 0.705111),
    Sketcher.Constraint("DistanceY", 6, 3, -1, 1, 163.815797),
])
pocket9 = doc.addObject("PartDesign::Pocket", "Pocket008")
body.addObject(pocket9)
pocket9.Profile = sketch10
pocket9.Type = "ThroughAll"
pocket9.Reversed = True

# Sketch on XY plane
sketch11 = doc.addObject("Sketcher::SketchObject", "Sketch010")
body.addObject(sketch11)
sketch11.AttachmentSupport = (doc.XY_Plane, [""])
sketch11.MapMode = "FlatFace"
sketch11.AttachmentOffset = App.Placement(Vector(0, 0, 5), App.Rotation())
sketch11.addGeometry([
    Part.LineSegment(Vector(-53.2, -160.7, 0), Vector(-56.8, -160.7, 0)),  # 0
    Part.LineSegment(Vector(-56.8, -160.7, 0), Vector(-58.6, -163.8, 0)),  # 1
    Part.LineSegment(Vector(-58.6, -163.8, 0), Vector(-56.8, -166.9, 0)),  # 2
    Part.LineSegment(Vector(-56.8, -166.9, 0), Vector(-53.2, -166.9, 0)),  # 3
    Part.LineSegment(Vector(-53.2, -166.9, 0), Vector(-51.4, -163.8, 0)),  # 4
    Part.LineSegment(Vector(-51.4, -163.8, 0), Vector(-53.2, -160.7, 0)),  # 5
    Part.Circle(Vector(-41.4, -163.8, 0), Vector(0, 0, 1), 8),  # 6
], False)
sketch11.addConstraint([
    Sketcher.Constraint("Coincident", 0, 2, 1, 1),
    Sketcher.Constraint("Coincident", 1, 2, 2, 1),
    Sketcher.Constraint("Coincident", 2, 2, 3, 1),
    Sketcher.Constraint("Coincident", 3, 2, 4, 1),
    Sketcher.Constraint("Coincident", 4, 2, 5, 1),
    Sketcher.Constraint("Coincident", 5, 2, 0, 1),
    Sketcher.Constraint("Horizontal", 0),
    Sketcher.Constraint("Horizontal", 3),
    Sketcher.Constraint("Parallel", 1, 4),
    Sketcher.Constraint("Parallel", 2, 5),
    Sketcher.Constraint("Horizontal", 6, 3, 1, 2),
    Sketcher.Constraint("Horizontal", 1, 2, 4, 2),
    Sketcher.Constraint("Vertical", 0, 2, 2, 2),
    Sketcher.Constraint("Vertical", 3, 2, 5, 2),
    Sketcher.Constraint("Diameter", 6, 16.0),
    Sketcher.Constraint("Angle", 1, Q("-120.000002 deg")),
    Sketcher.Constraint("DistanceX", 4, 2, 6, 3, 10.0),
    Sketcher.Constraint("DistanceY", 6, 3, 0, 2, 3.1),
    Sketcher.Constraint("DistanceX", 0, 2, 0, 1, 3.579572),
    Sketcher.Constraint("DistanceX", 6, 3, -1, 1, 41.447371),
    Sketcher.Constraint("DistanceY", 6, 3, -1, 1, 163.815796),
])
pocket10 = doc.addObject("PartDesign::Pocket", "Pocket009")
body.addObject(pocket10)
pocket10.Profile = sketch11
pocket10.Type = "ThroughAll"

# Sketch on XY plane
sketch12 = doc.addObject("Sketcher::SketchObject", "Sketch011")
body.addObject(sketch12)
sketch12.AttachmentSupport = (doc.XY_Plane, [""])
sketch12.MapMode = "FlatFace"
sketch12.AttachmentOffset = App.Placement(Vector(0, 0, 5), App.Rotation())
sketch12.addGeometry([
    Part.LineSegment(Vector(-60.1, -163.8, 0), Vector(-62.2, -160.1, 0)),  # 0
    Part.LineSegment(Vector(-62.2, -160.1, 0), Vector(-66.5, -160.1, 0)),  # 1
    Part.LineSegment(Vector(-66.5, -160.1, 0), Vector(-68.7, -163.8, 0)),  # 2
    Part.LineSegment(Vector(-68.7, -163.8, 0), Vector(-66.5, -167.5, 0)),  # 3
    Part.LineSegment(Vector(-66.5, -167.5, 0), Vector(-62.2, -167.5, 0)),  # 4
    Part.LineSegment(Vector(-62.2, -167.5, 0), Vector(-60.1, -163.8, 0)),  # 5
    Part.Circle(Vector(-41.4, -163.8, 0), Vector(0, 0, 1), 8),  # 6
], False)
sketch12.addConstraint([
    Sketcher.Constraint("Coincident", 0, 2, 1, 1),
    Sketcher.Constraint("Coincident", 1, 2, 2, 1),
    Sketcher.Constraint("Coincident", 2, 2, 3, 1),
    Sketcher.Constraint("Coincident", 3, 2, 4, 1),
    Sketcher.Constraint("Coincident", 4, 2, 5, 1),
    Sketcher.Constraint("Coincident", 5, 2, 0, 1),
    Sketcher.Constraint("Horizontal", 1),
    Sketcher.Constraint("Horizontal", 4),
    Sketcher.Constraint("Parallel", 0, 3),
    Sketcher.Constraint("Parallel", 2, 5),
    Sketcher.Constraint("Horizontal", 6, 3, 2, 2),
    Sketcher.Constraint("Horizontal", 2, 2, 5, 2),
    Sketcher.Constraint("Vertical", 1, 2, 3, 2),
    Sketcher.Constraint("Vertical", 0, 2, 4, 2),
    Sketcher.Constraint("Diameter", 6, 16.0),
    Sketcher.Constraint("Angle", 0, Q("120 deg")),
    Sketcher.Constraint("DistanceY", 6, 3, 0, 2, 3.7),
    Sketcher.Constraint("DistanceX", 1, 2, 1, 1, 4.272392),
    Sketcher.Constraint("DistanceX", 2, 2, -1, 1, 68.651299),
    Sketcher.Constraint("DistanceX", 6, 3, -1, 1, 41.447371),
    Sketcher.Constraint("DistanceY", 6, 3, -1, 1, 163.815796),
])
pocket11 = doc.addObject("PartDesign::Pocket", "Pocket010")
body.addObject(pocket11)
pocket11.Profile = sketch12
pocket11.Type = "ThroughAll"

# Sketch on XY plane
sketch13 = doc.addObject("Sketcher::SketchObject", "Sketch012")
body.addObject(sketch13)
sketch13.AttachmentSupport = (doc.XY_Plane, [""])
sketch13.MapMode = "FlatFace"
sketch13.AttachmentOffset = App.Placement(Vector(0, 0, 5), App.Rotation())
sketch13.addGeometry([
    Part.LineSegment(Vector(-85, -164, 0), Vector(-82, -170, 0)),  # 0
    Part.LineSegment(Vector(-82, -170, 0), Vector(-74, -170, 0)),  # 1
    Part.LineSegment(Vector(-74, -170, 0), Vector(-71, -164, 0)),  # 2
    Part.LineSegment(Vector(-71, -164, 0), Vector(-74, -157, 0)),  # 3
    Part.LineSegment(Vector(-74, -157, 0), Vector(-82, -157, 0)),  # 4
    Part.LineSegment(Vector(-82, -157, 0), Vector(-85, -164, 0)),  # 5
    Part.Circle(Vector(-41, -164, 0), Vector(0, 0, 1), 8),  # 6
], False)
sketch13.addConstraint([
    Sketcher.Constraint("Coincident", 0, 2, 1, 1),
    Sketcher.Constraint("Coincident", 1, 2, 2, 1),
    Sketcher.Constraint("Coincident", 2, 2, 3, 1),
    Sketcher.Constraint("Coincident", 3, 2, 4, 1),
    Sketcher.Constraint("Coincident", 4, 2, 5, 1),
    Sketcher.Constraint("Coincident", 5, 2, 0, 1),
    Sketcher.Constraint("Horizontal", 1),
    Sketcher.Constraint("Horizontal", 4),
    Sketcher.Constraint("Parallel", 0, 3),
    Sketcher.Constraint("Parallel", 2, 5),
    Sketcher.Constraint("Horizontal", 6, 3, 2, 2),
    Sketcher.Constraint("Horizontal", 2, 2, 5, 2),
    Sketcher.Constraint("Vertical", 1, 2, 3, 2),
    Sketcher.Constraint("Vertical", 0, 2, 4, 2),
    Sketcher.Constraint("Diameter", 6, 16.0),
    Sketcher.Constraint("Angle", 0, Q("-60.000001 deg")),
    Sketcher.Constraint("DistanceY", 1, 2, 3, 2, 12.7),
    Sketcher.Constraint("DistanceX", 2, 2, -1, 1, 70.651299),
    Sketcher.Constraint("DistanceX", 1, 1, 1, 2, 7.332348),
    Sketcher.Constraint("DistanceX", 6, 3, -1, 1, 41.447371),
    Sketcher.Constraint("DistanceY", 6, 3, -1, 1, 163.815796),
])
pocket12 = doc.addObject("PartDesign::Pocket", "Pocket011")
body.addObject(pocket12)
pocket12.Profile = sketch13
pocket12.Type = "ThroughAll"

# Sketch on XY plane
sketch14 = doc.addObject("Sketcher::SketchObject", "Sketch013")
body.addObject(sketch14)
sketch14.AttachmentSupport = (doc.XY_Plane, [""])
sketch14.MapMode = "FlatFace"
sketch14.AttachmentOffset = App.Placement(Vector(0, 0, 5), App.Rotation())
sketch14.addGeometry(Part.Circle(Vector(-70, -193, 0), Vector(0, 0, 1), 20), False)
sketch14.addConstraint([
    Sketcher.Constraint("Diameter", 0, 39.862686),
    Sketcher.Constraint("DistanceY", 0, 3, -1, 1, 192.772621),
    Sketcher.Constraint("DistanceX", 0, 3, -1, 1, 70.473262),
])
pocket13 = doc.addObject("PartDesign::Pocket", "Pocket012")
body.addObject(pocket13)
pocket13.Profile = sketch14
pocket13.Type = "ThroughAll"

# Sketch on XY plane
sketch15 = doc.addObject("Sketcher::SketchObject", "Sketch014")
body.addObject(sketch15)
sketch15.AttachmentSupport = (doc.XY_Plane, [""])
sketch15.MapMode = "FlatFace"
sketch15.AttachmentOffset = App.Placement(Vector(0, 0, 5), App.Rotation())
sketch15.addGeometry(Part.Circle(Vector(-70, -135, 0), Vector(0, 0, 1), 20), False)
sketch15.addConstraint([
    Sketcher.Constraint("Diameter", 0, 39.925558),
    Sketcher.Constraint("DistanceX", 0, 3, -1, 1, 70.446051),
    Sketcher.Constraint("DistanceY", 0, 3, -1, 1, 134.831722),
])
pocket14 = doc.addObject("PartDesign::Pocket", "Pocket013")
body.addObject(pocket14)
pocket14.Profile = sketch15
pocket14.Type = "ThroughAll"

# Sketch on XY plane
sketch16 = doc.addObject("Sketcher::SketchObject", "Sketch015")
body.addObject(sketch16)
sketch16.AttachmentSupport = (doc.XY_Plane, [""])
sketch16.MapMode = "FlatFace"
sketch16.AttachmentOffset = App.Placement(Vector(0, 0, 5), App.Rotation())
sketch16.addGeometry(Part.Circle(Vector(-12, -135, 0), Vector(0, 0, 1), 20), False)
sketch16.addConstraint([
    Sketcher.Constraint("Diameter", 0, 39.925558),
    Sketcher.Constraint("DistanceX", 0, 3, -1, 1, 12.448691),
    Sketcher.Constraint("DistanceY", 0, 3, -1, 1, 134.831722),
])
pocket15 = doc.addObject("PartDesign::Pocket", "Pocket014")
body.addObject(pocket15)
pocket15.Profile = sketch16
pocket15.Type = "ThroughAll"

# Sketch on XY plane
sketch17 = doc.addObject("Sketcher::SketchObject", "Sketch016")
body.addObject(sketch17)
sketch17.AttachmentSupport = (doc.XY_Plane, [""])
sketch17.MapMode = "FlatFace"
sketch17.AttachmentOffset = App.Placement(Vector(0, 0, 5), App.Rotation())
sketch17.addGeometry(Part.Circle(Vector(-12, -193, 0), Vector(0, 0, 1), 20), False)
sketch17.addConstraint([
    Sketcher.Constraint("Diameter", 0, 39.862686),
    Sketcher.Constraint("DistanceX", 0, 3, -1, 1, 12.421481),
    Sketcher.Constraint("DistanceY", 0, 3, -1, 1, 192.772621),
])
pocket16 = doc.addObject("PartDesign::Pocket", "Pocket015")
body.addObject(pocket16)
pocket16.Profile = sketch17
pocket16.Type = "ThroughAll"

doc.recompute()
